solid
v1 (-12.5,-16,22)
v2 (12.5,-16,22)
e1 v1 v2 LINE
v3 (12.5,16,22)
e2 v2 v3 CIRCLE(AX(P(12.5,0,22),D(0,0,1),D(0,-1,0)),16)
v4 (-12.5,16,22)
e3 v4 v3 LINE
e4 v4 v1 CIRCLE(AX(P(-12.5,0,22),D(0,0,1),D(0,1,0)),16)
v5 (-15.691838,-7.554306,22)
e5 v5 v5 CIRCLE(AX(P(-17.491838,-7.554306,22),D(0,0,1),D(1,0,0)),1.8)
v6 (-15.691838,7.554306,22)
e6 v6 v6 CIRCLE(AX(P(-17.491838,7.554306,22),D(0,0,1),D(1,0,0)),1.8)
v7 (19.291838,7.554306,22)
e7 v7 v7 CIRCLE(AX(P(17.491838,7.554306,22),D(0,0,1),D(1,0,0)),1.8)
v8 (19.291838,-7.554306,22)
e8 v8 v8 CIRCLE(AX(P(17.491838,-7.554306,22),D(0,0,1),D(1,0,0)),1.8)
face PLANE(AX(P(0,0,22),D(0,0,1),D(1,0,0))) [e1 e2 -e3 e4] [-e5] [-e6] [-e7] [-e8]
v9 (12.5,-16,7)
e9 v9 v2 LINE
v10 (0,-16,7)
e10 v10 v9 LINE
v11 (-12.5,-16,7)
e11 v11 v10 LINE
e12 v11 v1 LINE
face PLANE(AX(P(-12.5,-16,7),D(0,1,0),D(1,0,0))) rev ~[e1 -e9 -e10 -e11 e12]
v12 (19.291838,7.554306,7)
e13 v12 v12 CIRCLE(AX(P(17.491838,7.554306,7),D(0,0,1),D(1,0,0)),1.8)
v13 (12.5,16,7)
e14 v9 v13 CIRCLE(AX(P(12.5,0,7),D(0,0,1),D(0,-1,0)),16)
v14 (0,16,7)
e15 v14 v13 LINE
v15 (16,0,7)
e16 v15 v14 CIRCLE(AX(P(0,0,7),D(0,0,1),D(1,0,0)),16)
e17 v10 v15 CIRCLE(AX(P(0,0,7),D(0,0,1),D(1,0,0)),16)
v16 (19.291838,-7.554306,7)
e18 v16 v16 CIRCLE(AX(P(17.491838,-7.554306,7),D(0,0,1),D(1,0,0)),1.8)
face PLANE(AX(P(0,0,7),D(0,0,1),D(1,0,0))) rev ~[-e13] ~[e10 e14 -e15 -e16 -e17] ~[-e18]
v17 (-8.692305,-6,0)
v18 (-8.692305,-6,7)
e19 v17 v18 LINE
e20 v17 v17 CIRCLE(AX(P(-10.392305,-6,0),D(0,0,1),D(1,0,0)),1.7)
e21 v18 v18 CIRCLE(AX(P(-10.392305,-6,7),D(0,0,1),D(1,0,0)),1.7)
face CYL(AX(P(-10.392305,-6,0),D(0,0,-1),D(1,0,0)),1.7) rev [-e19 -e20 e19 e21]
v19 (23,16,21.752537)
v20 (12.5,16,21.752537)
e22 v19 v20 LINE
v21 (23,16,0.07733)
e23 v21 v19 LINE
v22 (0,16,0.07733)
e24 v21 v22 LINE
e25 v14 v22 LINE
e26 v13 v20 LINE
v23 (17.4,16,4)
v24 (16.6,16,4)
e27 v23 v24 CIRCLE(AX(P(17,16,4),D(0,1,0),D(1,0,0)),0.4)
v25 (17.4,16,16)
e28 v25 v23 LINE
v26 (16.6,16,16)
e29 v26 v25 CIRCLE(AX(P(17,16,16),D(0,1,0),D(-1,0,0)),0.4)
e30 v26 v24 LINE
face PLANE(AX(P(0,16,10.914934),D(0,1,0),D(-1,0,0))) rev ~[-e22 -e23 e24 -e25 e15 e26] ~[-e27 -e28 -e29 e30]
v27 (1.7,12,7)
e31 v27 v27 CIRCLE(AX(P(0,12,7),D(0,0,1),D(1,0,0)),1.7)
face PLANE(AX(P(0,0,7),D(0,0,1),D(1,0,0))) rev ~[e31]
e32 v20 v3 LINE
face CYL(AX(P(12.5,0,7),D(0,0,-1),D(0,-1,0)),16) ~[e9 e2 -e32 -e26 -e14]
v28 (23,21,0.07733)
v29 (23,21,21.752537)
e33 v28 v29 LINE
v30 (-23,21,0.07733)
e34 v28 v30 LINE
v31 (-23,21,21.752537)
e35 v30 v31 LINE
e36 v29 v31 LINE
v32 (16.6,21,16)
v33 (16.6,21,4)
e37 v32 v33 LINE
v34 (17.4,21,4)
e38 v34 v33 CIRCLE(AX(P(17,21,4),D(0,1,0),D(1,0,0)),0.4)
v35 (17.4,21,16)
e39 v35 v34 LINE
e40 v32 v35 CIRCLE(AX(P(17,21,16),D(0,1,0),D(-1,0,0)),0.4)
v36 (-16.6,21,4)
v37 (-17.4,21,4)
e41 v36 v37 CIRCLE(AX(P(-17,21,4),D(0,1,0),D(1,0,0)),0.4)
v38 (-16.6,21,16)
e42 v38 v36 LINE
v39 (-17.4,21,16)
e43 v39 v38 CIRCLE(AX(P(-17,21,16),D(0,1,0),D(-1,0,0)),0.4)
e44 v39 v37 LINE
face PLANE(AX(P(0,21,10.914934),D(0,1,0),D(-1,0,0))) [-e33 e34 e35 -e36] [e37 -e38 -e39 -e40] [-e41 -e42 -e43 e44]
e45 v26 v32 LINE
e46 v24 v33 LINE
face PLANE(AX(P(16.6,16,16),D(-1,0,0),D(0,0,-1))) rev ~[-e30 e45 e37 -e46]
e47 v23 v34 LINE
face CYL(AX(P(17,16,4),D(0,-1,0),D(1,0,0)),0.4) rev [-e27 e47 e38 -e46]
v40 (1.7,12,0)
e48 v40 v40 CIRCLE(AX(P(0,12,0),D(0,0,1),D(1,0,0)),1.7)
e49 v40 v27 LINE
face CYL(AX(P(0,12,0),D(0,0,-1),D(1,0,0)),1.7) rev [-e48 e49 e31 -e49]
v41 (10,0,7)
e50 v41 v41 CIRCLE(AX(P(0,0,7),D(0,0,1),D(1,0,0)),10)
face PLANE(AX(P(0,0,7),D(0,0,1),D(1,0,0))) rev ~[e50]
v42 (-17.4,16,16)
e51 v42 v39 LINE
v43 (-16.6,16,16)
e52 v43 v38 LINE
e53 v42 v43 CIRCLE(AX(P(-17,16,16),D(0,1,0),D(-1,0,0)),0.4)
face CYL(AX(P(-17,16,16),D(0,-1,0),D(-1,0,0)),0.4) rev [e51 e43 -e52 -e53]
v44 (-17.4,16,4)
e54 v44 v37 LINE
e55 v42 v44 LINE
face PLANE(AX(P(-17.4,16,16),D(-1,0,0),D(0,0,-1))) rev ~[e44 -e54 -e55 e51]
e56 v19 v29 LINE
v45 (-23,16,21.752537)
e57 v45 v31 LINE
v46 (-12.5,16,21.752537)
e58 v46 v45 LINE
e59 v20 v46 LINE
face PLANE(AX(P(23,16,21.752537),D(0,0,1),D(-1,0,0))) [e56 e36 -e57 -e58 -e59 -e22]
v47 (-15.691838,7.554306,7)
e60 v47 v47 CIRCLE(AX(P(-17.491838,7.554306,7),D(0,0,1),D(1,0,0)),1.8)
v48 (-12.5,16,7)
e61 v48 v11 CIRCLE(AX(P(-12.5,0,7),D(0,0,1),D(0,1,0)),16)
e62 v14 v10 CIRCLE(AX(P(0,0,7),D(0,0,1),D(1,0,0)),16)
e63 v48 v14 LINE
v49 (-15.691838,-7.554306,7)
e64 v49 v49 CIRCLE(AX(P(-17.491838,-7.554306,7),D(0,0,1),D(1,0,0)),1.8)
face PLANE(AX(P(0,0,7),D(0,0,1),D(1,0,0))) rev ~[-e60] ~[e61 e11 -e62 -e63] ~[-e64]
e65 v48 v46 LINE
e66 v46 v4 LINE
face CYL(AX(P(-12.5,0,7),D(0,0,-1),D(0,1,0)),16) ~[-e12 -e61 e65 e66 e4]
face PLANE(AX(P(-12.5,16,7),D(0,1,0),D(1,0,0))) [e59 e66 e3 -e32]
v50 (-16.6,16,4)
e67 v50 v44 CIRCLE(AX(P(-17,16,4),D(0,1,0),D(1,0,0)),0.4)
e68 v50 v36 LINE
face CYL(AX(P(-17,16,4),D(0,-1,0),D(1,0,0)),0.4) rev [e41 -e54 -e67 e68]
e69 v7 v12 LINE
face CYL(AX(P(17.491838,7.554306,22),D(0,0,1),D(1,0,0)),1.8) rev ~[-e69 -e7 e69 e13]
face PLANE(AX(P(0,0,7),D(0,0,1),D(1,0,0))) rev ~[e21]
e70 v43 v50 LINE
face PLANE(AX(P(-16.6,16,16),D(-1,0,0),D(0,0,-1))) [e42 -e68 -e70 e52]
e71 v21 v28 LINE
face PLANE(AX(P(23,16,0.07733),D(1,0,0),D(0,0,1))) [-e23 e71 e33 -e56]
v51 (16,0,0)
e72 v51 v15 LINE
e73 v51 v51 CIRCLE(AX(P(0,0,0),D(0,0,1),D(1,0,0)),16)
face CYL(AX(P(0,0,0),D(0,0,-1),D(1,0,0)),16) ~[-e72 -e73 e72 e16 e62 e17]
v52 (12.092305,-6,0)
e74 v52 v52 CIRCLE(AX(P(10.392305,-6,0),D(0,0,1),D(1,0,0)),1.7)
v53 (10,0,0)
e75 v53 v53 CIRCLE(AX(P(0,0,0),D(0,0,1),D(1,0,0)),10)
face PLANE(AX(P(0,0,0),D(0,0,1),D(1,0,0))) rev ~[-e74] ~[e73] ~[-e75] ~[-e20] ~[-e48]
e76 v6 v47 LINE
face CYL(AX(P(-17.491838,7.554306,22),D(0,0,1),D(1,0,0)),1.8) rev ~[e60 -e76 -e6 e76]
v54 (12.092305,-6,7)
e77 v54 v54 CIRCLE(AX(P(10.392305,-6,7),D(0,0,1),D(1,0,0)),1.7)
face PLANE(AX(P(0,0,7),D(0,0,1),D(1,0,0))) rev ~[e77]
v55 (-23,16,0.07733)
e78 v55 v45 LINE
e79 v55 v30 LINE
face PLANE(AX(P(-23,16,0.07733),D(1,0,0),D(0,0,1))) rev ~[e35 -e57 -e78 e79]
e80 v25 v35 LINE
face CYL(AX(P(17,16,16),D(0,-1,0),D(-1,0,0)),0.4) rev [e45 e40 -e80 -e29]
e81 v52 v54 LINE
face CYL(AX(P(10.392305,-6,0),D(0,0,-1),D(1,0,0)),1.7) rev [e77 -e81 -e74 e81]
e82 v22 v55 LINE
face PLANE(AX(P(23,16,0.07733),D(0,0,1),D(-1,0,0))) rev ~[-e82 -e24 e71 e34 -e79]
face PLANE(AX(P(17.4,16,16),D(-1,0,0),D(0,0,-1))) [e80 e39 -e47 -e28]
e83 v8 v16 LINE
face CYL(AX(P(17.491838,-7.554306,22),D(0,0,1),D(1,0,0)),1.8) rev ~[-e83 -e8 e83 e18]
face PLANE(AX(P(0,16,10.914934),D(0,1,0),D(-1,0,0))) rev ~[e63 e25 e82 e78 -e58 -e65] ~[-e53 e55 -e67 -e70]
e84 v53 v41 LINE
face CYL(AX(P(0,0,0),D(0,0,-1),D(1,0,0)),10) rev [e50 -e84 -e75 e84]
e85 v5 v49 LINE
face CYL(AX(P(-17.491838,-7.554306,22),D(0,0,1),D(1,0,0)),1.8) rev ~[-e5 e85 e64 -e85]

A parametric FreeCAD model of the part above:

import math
import FreeCAD as App
import Part
import Sketcher

V = App.Vector
Q = App.Units.Quantity

doc = App.newDocument("Part")
body = doc.addObject("PartDesign::Body", "Body")

# Sketch on XY plane
sketch1 = body.newObject("Sketcher::SketchObject", "Sketch")
sketch1.AttachmentSupport = (doc.getObject("XY_Plane"), [""])
sketch1.MapMode = "FlatFace"
sketch1.addGeometry([
    Part.Circle(V(0, 0, 0), V(0, 0, 1), 16),  # 0
    Part.Circle(V(-10.392305, -6, 0), V(0, 0, 1), 1.7),  # 1
    Part.Circle(V(0, 0, 0), V(0, 0, 1), 10),  # 2
    Part.Circle(V(10.392305, -6, 0), V(0, 0, 1), 1.7),  # 3
    Part.Circle(V(0, 12, 0), V(0, 0, 1), 1.7),  # 4
], False)
sketch1.addConstraint([
    Sketcher.Constraint("Coincident", 0, 3, -1, 1),
    Sketcher.Constraint("Coincident", 2, 3, -1, 1),
    Sketcher.Constraint("Equal", 1, 3),
    Sketcher.Constraint("Equal", 3, 4),
    Sketcher.Constraint("Symmetric", 1, 3, 3, 3, -2),
    Sketcher.Constraint("PointOnObject", 4, 3, -2),
    Sketcher.Constraint("Diameter", 0, Q("32 mm")),
    Sketcher.Constraint("Diameter", 2, Q("20 mm")),
    Sketcher.Constraint("Diameter", 1, Q("3.4 mm")),
    Sketcher.Constraint("DistanceY", 1, 3, -1, 1, Q("6 mm")),
    Sketcher.Constraint("DistanceY", -1, 1, 4, 3, Q("12 mm")),
    Sketcher.Constraint("DistanceX", 1, 3, 3, 3, Q("20.78461 mm")),
])
pad1 = body.newObject("PartDesign::Pad", "Pad")
pad1.Profile = sketch1
pad1.Length = 7

# Sketch on XY plane
sketch2 = body.newObject("Sketcher::SketchObject", "Sketch001")
sketch2.AttachmentSupport = (doc.getObject("XY_Plane"), [""])
sketch2.MapMode = "FlatFace"
sketch2.AttachmentOffset = App.Placement(V(0, 0, 7), App.Rotation())
sketch2.addGeometry([
    Part.ArcOfCircle(Part.Circle(V(-12.5, 0, 0), V(0, 0, 1), 16), math.radians(90), math.radians(270)),
    Part.LineSegment(V(-12.5, -16, 0), V(12.5, -16, 0)),
    Part.ArcOfCircle(Part.Circle(V(12.5, 0, 0), V(0, 0, 1), 16), math.radians(-90), math.radians(90)),
    Part.LineSegment(V(12.5, 16, 0), V(-12.5, 16, 0)),
], False)
sketch2.addConstraint([
    Sketcher.Constraint("Tangent", 0, 2, 1, 1),
    Sketcher.Constraint("Tangent", 1, 2, 2, 1),
    Sketcher.Constraint("Tangent", 2, 2, 3, 1),
    Sketcher.Constraint("Tangent", 3, 2, 0, 1),
    Sketcher.Constraint("Horizontal", 1),
    Sketcher.Constraint("Horizontal", 3),
    Sketcher.Constraint("Symmetric", 0, 3, 2, 3, -1, 1),
    Sketcher.Constraint("Radius", 0, Q("16 mm")),
    Sketcher.Constraint("DistanceX", 1, 1, 1, 2, Q("25 mm")),
])
pad2 = body.newObject("PartDesign::Pad", "Pad001")
pad2.Profile = sketch2
pad2.Length = 15

# Sketch on XY plane
sketch3 = body.newObject("Sketcher::SketchObject", "Sketch002")
sketch3.AttachmentSupport = (doc.getObject("XY_Plane"), [""])
sketch3.MapMode = "FlatFace"
sketch3.AttachmentOffset = App.Placement(V(0, 0, 22), App.Rotation())
sketch3.addGeometry([
    Part.Circle(V(-17.491838, 7.554306, 0), V(0, 0, 1), 1.8),
    Part.Circle(V(-17.491838, -7.554306, 0), V(0, 0, 1), 1.8),
    Part.Circle(V(17.491838, -7.554306, 0), V(0, 0, 1), 1.8),
    Part.Circle(V(17.491838, 7.554306, 0), V(0, 0, 1), 1.8),
], False)
sketch3.addConstraint([
    Sketcher.Constraint("Equal", 0, 1),
    Sketcher.Constraint("Equal", 1, 2),
    Sketcher.Constraint("Equal", 2, 3),
    Sketcher.Constraint("Symmetric", 0, 3, 2, 3, -1, 1),
    Sketcher.Constraint("Symmetric", 1, 3, 3, 3, -1, 1),
    Sketcher.Constraint("Symmetric", 1, 3, 2, 3, -2),
    Sketcher.Constraint("Diameter", 0, Q("3.6 mm")),
    Sketcher.Constraint("DistanceX", 0, 3, -1, 1, Q("17.491838 mm")),
    Sketcher.Constraint("DistanceY", -1, 1, 0, 3, Q("7.554306 mm")),
])
pocket1 = body.newObject("PartDesign::Pocket", "Pocket")
pocket1.Profile = sketch3
pocket1.Length = 30

# Sketch on XZ plane
sketch4 = body.newObject("Sketcher::SketchObject", "Sketch003")
sketch4.AttachmentSupport = (doc.getObject("XZ_Plane"), [""])
sketch4.MapMode = "FlatFace"
sketch4.AttachmentOffset = App.Placement(V(0, 0, -16), App.Rotation())
sketch4.addGeometry([
    Part.LineSegment(V(23, 21.752537, 0), V(23, 0.07733, 0)),  # 0
    Part.LineSegment(V(23, 0.07733, 0), V(-23, 0.07733, 0)),  # 1
    Part.LineSegment(V(-23, 0.07733, 0), V(-23, 21.752537, 0)),  # 2
    Part.LineSegment(V(-23, 21.752537, 0), V(23, 21.752537, 0)),  # 3
    Part.ArcOfCircle(Part.Circle(V(17, 16, 0), V(0, 0, 1), 0.4), math.radians(0), math.radians(180)),  # 4
    Part.LineSegment(V(16.6, 16, 0), V(16.6, 4, 0)),  # 5
    Part.ArcOfCircle(Part.Circle(V(17, 4, 0), V(0, 0, 1), 0.4), math.radians(180), math.radians(360)),  # 6
    Part.LineSegment(V(17.4, 4, 0), V(17.4, 16, 0)),  # 7
    Part.ArcOfCircle(Part.Circle(V(-17, 16, 0), V(0, 0, 1), 0.4), math.radians(0), math.radians(180)),  # 8
    Part.LineSegment(V(-17.4, 16, 0), V(-17.4, 4, 0)),  # 9
    Part.ArcOfCircle(Part.Circle(V(-17, 4, 0), V(0, 0, 1), 0.4), math.radians(180), math.radians(360)),  # 10
    Part.LineSegment(V(-16.6, 4, 0), V(-16.6, 16, 0)),  # 11
], False)
sketch4.addConstraint([
    Sketcher.Constraint("Coincident", 0, 2, 1, 1),
    Sketcher.Constraint("Coincident", 1, 2, 2, 1),
    Sketcher.Constraint("Coincident", 2, 2, 3, 1),
    Sketcher.Constraint("Coincident", 3, 2, 0, 1),
    Sketcher.Constraint("Tangent", 4, 2, 5, 1),
    Sketcher.Constraint("Tangent", 5, 2, 6, 1),
    Sketcher.Constraint("Tangent", 6, 2, 7, 1),
    Sketcher.Constraint("Tangent", 7, 2, 4, 1),
    Sketcher.Constraint("Tangent", 8, 2, 9, 1),
    Sketcher.Constraint("Tangent", 9, 2, 10, 1),
    Sketcher.Constraint("Tangent", 10, 2, 11, 1),
    Sketcher.Constraint("Tangent", 11, 2, 8, 1),
    Sketcher.Constraint("Vertical", 0),
    Sketcher.Constraint("Horizontal", 1),
    Sketcher.Constraint("Vertical", 2),
    Sketcher.Constraint("Horizontal", 3),
    Sketcher.Constraint("Vertical", 5),
    Sketcher.Constraint("Vertical", 7),
    Sketcher.Constraint("Vertical", 9),
    Sketcher.Constraint("Vertical", 11),
    Sketcher.Constraint("Equal", 6, 8),
    Sketcher.Constraint("Symmetric", 4, 3, 8, 3, -2),
    Sketcher.Constraint("Horizontal", 6, 3, 10, 3),
    Sketcher.Constraint("Radius", 4, Q("0.4 mm")),
    Sketcher.Constraint("DistanceX", 1, 2, 1, 1, Q("46 mm")),
    Sketcher.Constraint("DistanceY", 5, 2, 5, 1, Q("12 mm")),
    Sketcher.Constraint("DistanceX", -1, 1, 4, 3, Q("17 mm")),
    Sketcher.Constraint("DistanceY", -1, 1, 4, 3, Q("16 mm")),
    Sketcher.Constraint("DistanceX", -1, 1, 0, 2, Q("23 mm")),
    Sketcher.Constraint("DistanceY", 0, 2, 0, 1, Q("21.675207 mm")),
    Sketcher.Constraint("DistanceY", -1, 1, 0, 2, Q("0.07733 mm")),
])
pad3 = body.newObject("PartDesign::Pad", "Pad002")
pad3.Profile = sketch4
pad3.Length = 5
pad3.Reversed = True

doc.recompute()
